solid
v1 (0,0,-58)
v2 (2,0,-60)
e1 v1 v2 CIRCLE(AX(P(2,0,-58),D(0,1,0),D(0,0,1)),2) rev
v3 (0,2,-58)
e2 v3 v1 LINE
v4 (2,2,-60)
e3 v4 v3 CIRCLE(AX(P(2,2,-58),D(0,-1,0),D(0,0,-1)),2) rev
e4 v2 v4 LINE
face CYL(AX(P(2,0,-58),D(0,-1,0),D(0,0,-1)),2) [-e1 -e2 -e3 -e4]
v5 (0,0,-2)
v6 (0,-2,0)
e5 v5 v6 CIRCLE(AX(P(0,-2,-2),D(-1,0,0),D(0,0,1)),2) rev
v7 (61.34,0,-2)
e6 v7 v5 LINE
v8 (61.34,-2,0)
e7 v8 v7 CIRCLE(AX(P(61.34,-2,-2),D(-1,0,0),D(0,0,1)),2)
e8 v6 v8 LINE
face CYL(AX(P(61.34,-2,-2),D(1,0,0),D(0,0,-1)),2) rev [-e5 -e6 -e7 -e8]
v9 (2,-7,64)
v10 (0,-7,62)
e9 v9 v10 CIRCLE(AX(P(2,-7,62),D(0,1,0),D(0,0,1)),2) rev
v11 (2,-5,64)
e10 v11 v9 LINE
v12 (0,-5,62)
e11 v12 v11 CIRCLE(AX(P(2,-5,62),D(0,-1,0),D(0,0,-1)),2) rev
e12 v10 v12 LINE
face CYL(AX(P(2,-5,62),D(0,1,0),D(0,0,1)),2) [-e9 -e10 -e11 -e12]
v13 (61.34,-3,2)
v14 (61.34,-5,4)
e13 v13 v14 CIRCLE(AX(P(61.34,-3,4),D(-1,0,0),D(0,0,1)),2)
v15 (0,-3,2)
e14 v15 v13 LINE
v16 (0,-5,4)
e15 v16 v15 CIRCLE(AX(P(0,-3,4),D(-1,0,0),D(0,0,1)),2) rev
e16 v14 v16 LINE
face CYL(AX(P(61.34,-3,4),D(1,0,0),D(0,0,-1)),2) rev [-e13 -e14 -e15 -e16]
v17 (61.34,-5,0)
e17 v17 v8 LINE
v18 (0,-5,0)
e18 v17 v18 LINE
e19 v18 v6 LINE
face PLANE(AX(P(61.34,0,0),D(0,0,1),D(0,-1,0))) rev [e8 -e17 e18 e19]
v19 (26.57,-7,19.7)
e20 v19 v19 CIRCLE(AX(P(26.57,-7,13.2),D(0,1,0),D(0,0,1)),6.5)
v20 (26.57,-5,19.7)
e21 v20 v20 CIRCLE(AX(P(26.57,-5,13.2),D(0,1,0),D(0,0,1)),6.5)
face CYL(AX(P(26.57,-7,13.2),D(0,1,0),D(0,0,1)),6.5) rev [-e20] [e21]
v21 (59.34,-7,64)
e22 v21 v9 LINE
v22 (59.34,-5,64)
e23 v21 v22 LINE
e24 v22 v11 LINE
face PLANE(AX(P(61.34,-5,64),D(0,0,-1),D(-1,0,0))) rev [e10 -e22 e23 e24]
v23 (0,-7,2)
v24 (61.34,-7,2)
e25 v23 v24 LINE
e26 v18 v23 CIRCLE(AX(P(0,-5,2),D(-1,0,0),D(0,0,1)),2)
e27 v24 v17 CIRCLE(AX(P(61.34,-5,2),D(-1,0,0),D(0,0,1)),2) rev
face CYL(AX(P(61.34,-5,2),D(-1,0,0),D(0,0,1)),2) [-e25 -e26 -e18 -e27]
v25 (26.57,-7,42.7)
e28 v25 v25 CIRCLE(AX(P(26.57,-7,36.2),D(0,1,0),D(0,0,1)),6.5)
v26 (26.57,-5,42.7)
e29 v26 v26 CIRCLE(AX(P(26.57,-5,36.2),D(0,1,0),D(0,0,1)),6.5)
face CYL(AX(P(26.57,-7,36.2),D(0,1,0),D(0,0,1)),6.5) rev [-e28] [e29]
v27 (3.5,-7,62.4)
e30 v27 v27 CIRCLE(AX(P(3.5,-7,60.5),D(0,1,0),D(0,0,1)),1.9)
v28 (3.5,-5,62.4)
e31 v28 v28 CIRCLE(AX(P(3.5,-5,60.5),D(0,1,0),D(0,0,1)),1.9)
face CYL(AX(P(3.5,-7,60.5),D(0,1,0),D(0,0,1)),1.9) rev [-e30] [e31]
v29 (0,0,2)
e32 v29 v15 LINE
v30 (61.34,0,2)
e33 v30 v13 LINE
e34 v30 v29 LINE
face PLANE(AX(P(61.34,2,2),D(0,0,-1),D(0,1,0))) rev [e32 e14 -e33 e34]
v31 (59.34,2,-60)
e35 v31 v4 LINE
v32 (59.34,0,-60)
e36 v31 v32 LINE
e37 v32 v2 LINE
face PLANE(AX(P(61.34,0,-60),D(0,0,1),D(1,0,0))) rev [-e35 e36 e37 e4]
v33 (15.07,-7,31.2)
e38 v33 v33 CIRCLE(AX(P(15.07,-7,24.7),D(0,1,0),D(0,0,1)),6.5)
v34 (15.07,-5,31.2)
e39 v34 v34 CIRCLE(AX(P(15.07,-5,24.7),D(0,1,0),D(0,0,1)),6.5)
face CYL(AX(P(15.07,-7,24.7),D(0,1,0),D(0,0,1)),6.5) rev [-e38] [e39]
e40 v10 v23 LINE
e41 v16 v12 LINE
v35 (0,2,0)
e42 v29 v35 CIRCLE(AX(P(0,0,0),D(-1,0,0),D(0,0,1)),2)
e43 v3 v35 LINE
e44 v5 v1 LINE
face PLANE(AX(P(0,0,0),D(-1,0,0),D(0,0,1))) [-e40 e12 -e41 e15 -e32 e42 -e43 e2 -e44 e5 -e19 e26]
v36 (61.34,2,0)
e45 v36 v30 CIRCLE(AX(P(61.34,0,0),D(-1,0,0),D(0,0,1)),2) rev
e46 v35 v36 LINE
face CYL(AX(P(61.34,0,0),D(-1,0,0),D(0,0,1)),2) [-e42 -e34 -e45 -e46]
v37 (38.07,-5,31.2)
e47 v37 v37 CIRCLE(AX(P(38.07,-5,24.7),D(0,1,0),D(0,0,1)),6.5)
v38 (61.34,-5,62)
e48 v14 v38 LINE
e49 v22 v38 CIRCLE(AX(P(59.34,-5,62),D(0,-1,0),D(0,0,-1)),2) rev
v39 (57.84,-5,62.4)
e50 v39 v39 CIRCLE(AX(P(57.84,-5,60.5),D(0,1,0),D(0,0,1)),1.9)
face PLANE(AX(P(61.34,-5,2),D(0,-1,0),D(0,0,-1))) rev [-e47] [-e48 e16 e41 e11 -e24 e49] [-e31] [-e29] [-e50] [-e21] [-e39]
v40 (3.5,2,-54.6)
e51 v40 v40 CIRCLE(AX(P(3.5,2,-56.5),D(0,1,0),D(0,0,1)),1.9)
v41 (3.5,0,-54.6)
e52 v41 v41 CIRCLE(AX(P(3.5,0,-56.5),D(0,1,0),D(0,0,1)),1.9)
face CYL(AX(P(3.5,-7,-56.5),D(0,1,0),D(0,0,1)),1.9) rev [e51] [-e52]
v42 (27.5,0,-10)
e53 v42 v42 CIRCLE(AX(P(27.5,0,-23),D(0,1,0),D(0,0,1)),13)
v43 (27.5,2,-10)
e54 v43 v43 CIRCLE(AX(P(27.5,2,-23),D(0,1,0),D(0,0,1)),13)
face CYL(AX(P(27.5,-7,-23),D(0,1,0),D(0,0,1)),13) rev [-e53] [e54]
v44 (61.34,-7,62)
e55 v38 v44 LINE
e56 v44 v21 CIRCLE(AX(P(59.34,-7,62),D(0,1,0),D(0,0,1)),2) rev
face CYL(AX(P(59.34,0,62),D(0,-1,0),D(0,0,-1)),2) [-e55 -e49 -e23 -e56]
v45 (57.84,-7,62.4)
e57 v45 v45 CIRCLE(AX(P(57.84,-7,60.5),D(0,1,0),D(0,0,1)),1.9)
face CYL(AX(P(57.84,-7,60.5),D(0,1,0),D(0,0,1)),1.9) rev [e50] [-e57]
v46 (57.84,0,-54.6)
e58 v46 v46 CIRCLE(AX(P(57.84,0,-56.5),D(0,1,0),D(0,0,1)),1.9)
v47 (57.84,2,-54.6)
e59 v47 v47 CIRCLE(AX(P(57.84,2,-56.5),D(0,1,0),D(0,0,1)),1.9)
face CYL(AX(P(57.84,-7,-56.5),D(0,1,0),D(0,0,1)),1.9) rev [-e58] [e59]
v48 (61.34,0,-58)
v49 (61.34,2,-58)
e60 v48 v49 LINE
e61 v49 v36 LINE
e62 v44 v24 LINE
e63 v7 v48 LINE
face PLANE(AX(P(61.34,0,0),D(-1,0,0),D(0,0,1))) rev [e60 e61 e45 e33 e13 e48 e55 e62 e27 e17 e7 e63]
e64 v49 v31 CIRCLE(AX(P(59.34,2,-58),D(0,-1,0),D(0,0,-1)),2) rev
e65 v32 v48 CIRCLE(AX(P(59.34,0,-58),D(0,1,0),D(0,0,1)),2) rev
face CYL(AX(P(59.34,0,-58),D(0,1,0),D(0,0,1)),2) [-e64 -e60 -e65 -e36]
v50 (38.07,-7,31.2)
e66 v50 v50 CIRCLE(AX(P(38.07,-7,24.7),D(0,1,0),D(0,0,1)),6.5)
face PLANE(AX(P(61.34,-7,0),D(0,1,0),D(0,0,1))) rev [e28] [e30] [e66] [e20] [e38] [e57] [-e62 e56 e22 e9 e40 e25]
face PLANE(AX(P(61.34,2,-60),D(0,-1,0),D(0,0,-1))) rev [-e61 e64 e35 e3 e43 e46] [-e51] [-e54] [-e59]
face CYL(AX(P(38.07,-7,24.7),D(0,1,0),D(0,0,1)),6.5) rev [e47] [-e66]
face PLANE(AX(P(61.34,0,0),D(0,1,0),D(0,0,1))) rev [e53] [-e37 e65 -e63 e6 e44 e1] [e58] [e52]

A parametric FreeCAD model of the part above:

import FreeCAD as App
import Part
import Sketcher


def edges_at(feature, points):
    """Names of the edges that pass closest to the given points."""
    edges = feature.Shape.Edges
    near = lambda p: min(range(len(edges)), key=lambda i: edges[i].distToShape(Part.Vertex(*p))[0])
    return sorted({f"Edge{near(p) + 1}" for p in points})


def add_polygon(sketch, points):
    """Adds a closed chain of lines whose ends are joined by coincident constraints."""
    first, n = sketch.GeometryCount, len(points)
    for a, b in zip(points, points[1:] + points[:1]):
        sketch.addGeometry(Part.LineSegment(App.Vector(*a, 0), App.Vector(*b, 0)), False)
    for i in range(n):
        sketch.addConstraint(Sketcher.Constraint("Coincident", first + i, 2, first + (i + 1) % n, 1))

doc = App.newDocument("Part")
params = doc.addObject("Spreadsheet::Sheet", "Params")
for row, (alias, value) in enumerate([
    ("sketch1_width", "2 mm"),
    ("sketch1_width2", "7 mm"),
    ("sketch1_height", "60 mm"),
    ("sketch1_height2", "62 mm"),
    ("pad1_length", "61.34 mm"),
    ("sketch2_diameter", "26 mm"),
    ("sketch2_diameter2", "3.8 mm"),
    ("sketch3_diameter", "13 mm"),
    ("sketch3_diameter2", "3.8 mm"),
    ("fillet_radius", "2 mm"),
    ("fillet2_radius", "2 mm"),
], start=1):
    params.set(f"A{row}", alias)
    params.set(f"B{row}", "=" + value)
    params.setAlias(f"B{row}", alias)

body = doc.addObject("PartDesign::Body", "Body")

# Sketch on YZ plane
sketch1 = body.newObject("Sketcher::SketchObject", "Sketch")
sketch1.AttachmentSupport = (doc.getObject("YZ_Plane"), [""])
sketch1.MapMode = "FlatFace"
add_polygon(sketch1, [(0, 0), (0, -60), (2, -60), (2, 2), (-5, 2), (-5, 64), (-7, 64), (-7, 0)])  # lines 0-7
sketch1.addConstraint(Sketcher.Constraint("Vertical", 0))
sketch1.addConstraint(Sketcher.Constraint("Horizontal", 1))
sketch1.addConstraint(Sketcher.Constraint("Vertical", 2))
sketch1.addConstraint(Sketcher.Constraint("Horizontal", 3))
sketch1.addConstraint(Sketcher.Constraint("Vertical", 4))
sketch1.addConstraint(Sketcher.Constraint("Horizontal", 5))
sketch1.addConstraint(Sketcher.Constraint("Vertical", 6))
sketch1.addConstraint(Sketcher.Constraint("Horizontal", 7))
sketch1.addConstraint(Sketcher.Constraint("Coincident", 7, 2, -1, 1))
sketch1.addConstraint(Sketcher.Constraint("Equal", 1, 5))
sketch1.addConstraint(Sketcher.Constraint("Equal", 2, 4))
sketch1.addConstraint(Sketcher.Constraint("DistanceX", 1, 1, 1, 2, 2.0))
sketch1.addConstraint(Sketcher.Constraint("DistanceX", 3, 2, 3, 1, 7.0))
sketch1.addConstraint(Sketcher.Constraint("DistanceY", 0, 2, 0, 1, 60.0))
sketch1.addConstraint(Sketcher.Constraint("DistanceY", 2, 1, 2, 2, 62.0))
sketch1.setExpression("Constraints[19]", "Params.sketch1_width")
sketch1.setExpression("Constraints[20]", "Params.sketch1_width2")
sketch1.setExpression("Constraints[21]", "Params.sketch1_height")
sketch1.setExpression("Constraints[22]", "Params.sketch1_height2")
pad1 = body.newObject("PartDesign::Pad", "Pad")
pad1.Profile = sketch1
pad1.setExpression("Length", "Params.pad1_length")

# Sketch on XZ plane
sketch2 = body.newObject("Sketcher::SketchObject", "Sketch001")
sketch2.AttachmentSupport = (doc.getObject("XZ_Plane"), [""])
sketch2.MapMode = "FlatFace"
sketch2.AttachmentOffset = App.Placement(App.Vector(0, 0, -2), App.Rotation())
sketch2.addGeometry(Part.Circle(App.Vector(27.5, -23, 0), App.Vector(0, 0, 1), 13), False)
sketch2.addGeometry(Part.Circle(App.Vector(57.8, -56.5, 0), App.Vector(0, 0, 1), 1.9), False)
sketch2.addGeometry(Part.Circle(App.Vector(3.5, -56.5, 0), App.Vector(0, 0, 1), 1.9), False)
sketch2.addConstraint(Sketcher.Constraint("Equal", 1, 2))
sketch2.addConstraint(Sketcher.Constraint("Horizontal", 1, 3, 2, 3))
sketch2.addConstraint(Sketcher.Constraint("Diameter", 0, 26.0))
sketch2.addConstraint(Sketcher.Constraint("Diameter", 1, 3.8))
sketch2.addConstraint(Sketcher.Constraint("DistanceY", 0, 3, -1, 1, 23.0))
sketch2.addConstraint(Sketcher.Constraint("DistanceX", 2, 3, 0, 3, 24.0))
sketch2.addConstraint(Sketcher.Constraint("DistanceX", -1, 1, 0, 3, 27.5))
sketch2.addConstraint(Sketcher.Constraint("DistanceY", 1, 3, -1, 1, 56.5))
sketch2.addConstraint(Sketcher.Constraint("DistanceX", -1, 1, 1, 3, 57.84))
sketch2.setExpression("Constraints[2]", "Params.sketch2_diameter")
sketch2.setExpression("Constraints[3]", "Params.sketch2_diameter2")
pocket1 = body.newObject("PartDesign::Pocket", "Pocket")
pocket1.Profile = sketch2
pocket1.Type = "ThroughAll"
pocket1.Reversed = True

# Sketch on XZ plane
sketch3 = body.newObject("Sketcher::SketchObject", "Sketch002")
sketch3.AttachmentSupport = (doc.getObject("XZ_Plane"), [""])
sketch3.MapMode = "FlatFace"
sketch3.AttachmentOffset = App.Placement(App.Vector(0, 0, 5), App.Rotation())
sketch3.addGeometry(Part.Circle(App.Vector(38.1, 24.7, 0), App.Vector(0, 0, 1), 6.5), False)
sketch3.addGeometry(Part.Circle(App.Vector(26.6, 36.2, 0), App.Vector(0, 0, 1), 6.5), False)
sketch3.addGeometry(Part.Circle(App.Vector(15.1, 24.7, 0), App.Vector(0, 0, 1), 6.5), False)
sketch3.addGeometry(Part.Circle(App.Vector(26.6, 13.2, 0), App.Vector(0, 0, 1), 6.5), False)
sketch3.addGeometry(Part.Circle(App.Vector(57.8, 60.5, 0), App.Vector(0, 0, 1), 1.9), False)
sketch3.addGeometry(Part.Circle(App.Vector(3.5, 60.5, 0), App.Vector(0, 0, 1), 1.9), False)
sketch3.addConstraint(Sketcher.Constraint("Equal", 0, 1))
sketch3.addConstraint(Sketcher.Constraint("Equal", 1, 2))
sketch3.addConstraint(Sketcher.Constraint("Equal", 2, 3))
sketch3.addConstraint(Sketcher.Constraint("Equal", 4, 5))
sketch3.addConstraint(Sketcher.Constraint("Horizontal", 0, 3, 2, 3))
sketch3.addConstraint(Sketcher.Constraint("Horizontal", 4, 3, 5, 3))
sketch3.addConstraint(Sketcher.Constraint("Vertical", 1, 3, 3, 3))
sketch3.addConstraint(Sketcher.Constraint("Diameter", 0, 13.0))
sketch3.addConstraint(Sketcher.Constraint("Diameter", 4, 3.8))
sketch3.addConstraint(Sketcher.Constraint("DistanceX", 2, 3, 0, 3, 23.0))
sketch3.addConstraint(Sketcher.Constraint("DistanceY", 3, 3, 1, 3, 23.0))
sketch3.addConstraint(Sketcher.Constraint("DistanceY", -1, 1, 0, 3, 24.7))
sketch3.addConstraint(Sketcher.Constraint("DistanceY", -1, 1, 1, 3, 36.2))
sketch3.addConstraint(Sketcher.Constraint("DistanceY", -1, 1, 4, 3, 60.5))
sketch3.addConstraint(Sketcher.Constraint("DistanceX", -1, 1, 5, 3, 3.5))
sketch3.addConstraint(Sketcher.Constraint("DistanceX", 1, 3, 0, 3, 11.5))
sketch3.addConstraint(Sketcher.Constraint("DistanceX", -1, 1, 0, 3, 38.07))
sketch3.addConstraint(Sketcher.Constraint("DistanceX", -1, 1, 4, 3, 57.84))
sketch3.setExpression("Constraints[7]", "Params.sketch3_diameter")
sketch3.setExpression("Constraints[8]", "Params.sketch3_diameter2")
pocket2 = body.newObject("PartDesign::Pocket", "Pocket001")
pocket2.Profile = sketch3
pocket2.Type = "ThroughAll"
pocket2.Reversed = True
doc.recompute()

fillet = body.newObject("PartDesign::Fillet", "Fillet")
fillet.Base = (pocket2, edges_at(pocket2, [
    (30.67, -7, 0),
    (30.67, -5, 2),
    (30.67, 2, 2),
    (30.67, 0, 0),
]))
fillet.setExpression("Radius", "Params.fillet_radius")
doc.recompute()

fillet2 = body.newObject("PartDesign::Fillet", "Fillet001")
fillet2.Base = (fillet, edges_at(fillet, [
    (0, 1, -60),
    (61.34, 1, -60),
    (61.34, -6, 64),
    (0, -6, 64),
]))
fillet2.setExpression("Radius", "Params.fillet2_radius")

doc.recompute()
